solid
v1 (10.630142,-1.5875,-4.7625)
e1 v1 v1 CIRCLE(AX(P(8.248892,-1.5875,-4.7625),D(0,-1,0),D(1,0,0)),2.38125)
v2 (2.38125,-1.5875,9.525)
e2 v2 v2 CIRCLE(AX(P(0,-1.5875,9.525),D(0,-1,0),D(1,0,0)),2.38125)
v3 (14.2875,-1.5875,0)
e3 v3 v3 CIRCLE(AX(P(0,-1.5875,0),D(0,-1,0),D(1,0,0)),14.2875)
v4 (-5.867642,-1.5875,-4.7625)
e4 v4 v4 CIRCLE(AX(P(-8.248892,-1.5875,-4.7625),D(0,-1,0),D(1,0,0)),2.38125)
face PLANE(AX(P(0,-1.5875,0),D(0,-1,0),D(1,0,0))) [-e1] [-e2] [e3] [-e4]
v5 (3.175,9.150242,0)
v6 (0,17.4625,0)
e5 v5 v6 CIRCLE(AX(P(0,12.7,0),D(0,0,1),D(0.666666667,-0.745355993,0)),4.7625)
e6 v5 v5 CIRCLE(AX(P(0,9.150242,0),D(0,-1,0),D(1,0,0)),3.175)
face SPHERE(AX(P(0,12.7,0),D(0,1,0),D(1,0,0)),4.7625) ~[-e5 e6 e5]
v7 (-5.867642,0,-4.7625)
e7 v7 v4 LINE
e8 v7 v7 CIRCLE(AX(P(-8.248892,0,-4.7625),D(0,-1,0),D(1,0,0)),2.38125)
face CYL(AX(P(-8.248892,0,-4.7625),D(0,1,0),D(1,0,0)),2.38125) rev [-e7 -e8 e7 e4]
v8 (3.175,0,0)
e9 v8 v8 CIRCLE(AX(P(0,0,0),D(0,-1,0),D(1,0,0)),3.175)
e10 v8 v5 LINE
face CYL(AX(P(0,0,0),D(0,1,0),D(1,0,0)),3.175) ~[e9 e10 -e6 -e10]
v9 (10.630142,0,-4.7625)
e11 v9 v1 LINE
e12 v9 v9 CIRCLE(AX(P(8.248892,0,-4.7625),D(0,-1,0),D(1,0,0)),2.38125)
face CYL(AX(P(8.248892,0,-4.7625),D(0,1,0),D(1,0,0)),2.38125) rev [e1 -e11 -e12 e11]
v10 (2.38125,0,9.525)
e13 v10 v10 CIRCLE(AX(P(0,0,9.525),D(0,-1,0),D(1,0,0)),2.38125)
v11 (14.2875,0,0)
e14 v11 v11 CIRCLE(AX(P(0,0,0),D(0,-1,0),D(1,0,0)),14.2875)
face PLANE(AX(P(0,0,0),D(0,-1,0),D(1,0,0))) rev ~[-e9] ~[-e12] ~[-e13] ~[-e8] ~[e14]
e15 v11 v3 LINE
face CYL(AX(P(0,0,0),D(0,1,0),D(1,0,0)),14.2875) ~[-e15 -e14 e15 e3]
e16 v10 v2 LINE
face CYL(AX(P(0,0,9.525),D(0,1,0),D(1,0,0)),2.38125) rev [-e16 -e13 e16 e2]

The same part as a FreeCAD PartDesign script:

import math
import FreeCAD as App
import Part
import Sketcher

V = App.Vector
Q = App.Units.Quantity

doc = App.newDocument("Part")
body = doc.addObject("PartDesign::Body", "Body")

# Sketch on XZ plane
sketch1 = doc.addObject("Sketcher::SketchObject", "Sketch")
body.addObject(sketch1)
sketch1.AttachmentSupport = (doc.XZ_Plane, [""])
sketch1.MapMode = "FlatFace"
sketch1.addGeometry(Part.Circle(V(0, 0, 0), V(0, 0, 1), 14.3), False)
sketch1.addGeometry(Part.Circle(V(-8.2, -4.8, 0), V(0, 0, 1), 2.4), False)
sketch1.addGeometry(Part.Circle(V(8.2, -4.8, 0), V(0, 0, 1), 2.4), False)
sketch1.addGeometry(Part.Circle(V(0, 9.5, 0), V(0, 0, 1), 2.4), False)
sketch1.addConstraint(Sketcher.Constraint("Coincident", 0, 3, -1, 1))
sketch1.addConstraint(Sketcher.Constraint("Equal", 1, 2))
sketch1.addConstraint(Sketcher.Constraint("Equal", 2, 3))
sketch1.addConstraint(Sketcher.Constraint("Symmetric", 1, 3, 2, 3, -2))
sketch1.addConstraint(Sketcher.Constraint("PointOnObject", 3, 3, -2))
sketch1.addConstraint(Sketcher.Constraint("Diameter", 0, Q("1.125 in")))
sketch1.addConstraint(Sketcher.Constraint("Diameter", 1, Q("0.1875 in")))
sketch1.addConstraint(Sketcher.Constraint("DistanceY", 1, 3, -1, 1, Q("0.1875 in")))
sketch1.addConstraint(Sketcher.Constraint("DistanceY", -1, 1, 3, 3, Q("0.375 in")))
sketch1.addConstraint(Sketcher.Constraint("DistanceX", 1, 3, -1, 1, Q("8.248892 mm")))
pad1 = doc.addObject("PartDesign::Pad", "Pad")
body.addObject(pad1)
pad1.Profile = sketch1
pad1.Length = Q("0.0625 in")

# Sketch on XY plane
sketch2 = doc.addObject("Sketcher::SketchObject", "Sketch001")
body.addObject(sketch2)
sketch2.AttachmentSupport = (doc.XY_Plane, [""])
sketch2.MapMode = "FlatFace"
sketch2.addGeometry(Part.LineSegment(V(0, 0, 0), V(3.2, 0, 0)), False)
sketch2.addGeometry(Part.LineSegment(V(3.2, 0, 0), V(3.2, 9.2, 0)), False)
sketch2.addGeometry(Part.ArcOfCircle(Part.Circle(V(0, 12.7, 0), V(0, 0, 1), 4.8), math.radians(-48), math.radians(90)), False)
sketch2.addGeometry(Part.LineSegment(V(0, 17.5, 0), V(0, 0, 0)), False)
sketch2.addConstraint(Sketcher.Constraint("Coincident", 0, 2, 1, 1))
sketch2.addConstraint(Sketcher.Constraint("Coincident", 1, 2, 2, 1))
sketch2.addConstraint(Sketcher.Constraint("Coincident", 2, 2, 3, 1))
sketch2.addConstraint(Sketcher.Constraint("Coincident", 3, 2, 0, 1))
sketch2.addConstraint(Sketcher.Constraint("Horizontal", 0))
sketch2.addConstraint(Sketcher.Constraint("Vertical", 1))
sketch2.addConstraint(Sketcher.Constraint("Vertical", 3))
sketch2.addConstraint(Sketcher.Constraint("Coincident", 3, 2, -1, 1))
sketch2.addConstraint(Sketcher.Constraint("PointOnObject", 2, 3, -2))
sketch2.addConstraint(Sketcher.Constraint("Radius", 2, Q("0.1875 in")))
sketch2.addConstraint(Sketcher.Constraint("DistanceY", -1, 1, 2, 3, Q("0.5 in")))
sketch2.addConstraint(Sketcher.Constraint("DistanceX", 0, 1, 0, 2, Q("0.125 in")))
revolution = doc.addObject("PartDesign::Revolution", "Revolution")
body.addObject(revolution)
revolution.Profile = sketch2
revolution.ReferenceAxis = (sketch2, ["V_Axis"])
revolution.Angle = 360

doc.recompute()
